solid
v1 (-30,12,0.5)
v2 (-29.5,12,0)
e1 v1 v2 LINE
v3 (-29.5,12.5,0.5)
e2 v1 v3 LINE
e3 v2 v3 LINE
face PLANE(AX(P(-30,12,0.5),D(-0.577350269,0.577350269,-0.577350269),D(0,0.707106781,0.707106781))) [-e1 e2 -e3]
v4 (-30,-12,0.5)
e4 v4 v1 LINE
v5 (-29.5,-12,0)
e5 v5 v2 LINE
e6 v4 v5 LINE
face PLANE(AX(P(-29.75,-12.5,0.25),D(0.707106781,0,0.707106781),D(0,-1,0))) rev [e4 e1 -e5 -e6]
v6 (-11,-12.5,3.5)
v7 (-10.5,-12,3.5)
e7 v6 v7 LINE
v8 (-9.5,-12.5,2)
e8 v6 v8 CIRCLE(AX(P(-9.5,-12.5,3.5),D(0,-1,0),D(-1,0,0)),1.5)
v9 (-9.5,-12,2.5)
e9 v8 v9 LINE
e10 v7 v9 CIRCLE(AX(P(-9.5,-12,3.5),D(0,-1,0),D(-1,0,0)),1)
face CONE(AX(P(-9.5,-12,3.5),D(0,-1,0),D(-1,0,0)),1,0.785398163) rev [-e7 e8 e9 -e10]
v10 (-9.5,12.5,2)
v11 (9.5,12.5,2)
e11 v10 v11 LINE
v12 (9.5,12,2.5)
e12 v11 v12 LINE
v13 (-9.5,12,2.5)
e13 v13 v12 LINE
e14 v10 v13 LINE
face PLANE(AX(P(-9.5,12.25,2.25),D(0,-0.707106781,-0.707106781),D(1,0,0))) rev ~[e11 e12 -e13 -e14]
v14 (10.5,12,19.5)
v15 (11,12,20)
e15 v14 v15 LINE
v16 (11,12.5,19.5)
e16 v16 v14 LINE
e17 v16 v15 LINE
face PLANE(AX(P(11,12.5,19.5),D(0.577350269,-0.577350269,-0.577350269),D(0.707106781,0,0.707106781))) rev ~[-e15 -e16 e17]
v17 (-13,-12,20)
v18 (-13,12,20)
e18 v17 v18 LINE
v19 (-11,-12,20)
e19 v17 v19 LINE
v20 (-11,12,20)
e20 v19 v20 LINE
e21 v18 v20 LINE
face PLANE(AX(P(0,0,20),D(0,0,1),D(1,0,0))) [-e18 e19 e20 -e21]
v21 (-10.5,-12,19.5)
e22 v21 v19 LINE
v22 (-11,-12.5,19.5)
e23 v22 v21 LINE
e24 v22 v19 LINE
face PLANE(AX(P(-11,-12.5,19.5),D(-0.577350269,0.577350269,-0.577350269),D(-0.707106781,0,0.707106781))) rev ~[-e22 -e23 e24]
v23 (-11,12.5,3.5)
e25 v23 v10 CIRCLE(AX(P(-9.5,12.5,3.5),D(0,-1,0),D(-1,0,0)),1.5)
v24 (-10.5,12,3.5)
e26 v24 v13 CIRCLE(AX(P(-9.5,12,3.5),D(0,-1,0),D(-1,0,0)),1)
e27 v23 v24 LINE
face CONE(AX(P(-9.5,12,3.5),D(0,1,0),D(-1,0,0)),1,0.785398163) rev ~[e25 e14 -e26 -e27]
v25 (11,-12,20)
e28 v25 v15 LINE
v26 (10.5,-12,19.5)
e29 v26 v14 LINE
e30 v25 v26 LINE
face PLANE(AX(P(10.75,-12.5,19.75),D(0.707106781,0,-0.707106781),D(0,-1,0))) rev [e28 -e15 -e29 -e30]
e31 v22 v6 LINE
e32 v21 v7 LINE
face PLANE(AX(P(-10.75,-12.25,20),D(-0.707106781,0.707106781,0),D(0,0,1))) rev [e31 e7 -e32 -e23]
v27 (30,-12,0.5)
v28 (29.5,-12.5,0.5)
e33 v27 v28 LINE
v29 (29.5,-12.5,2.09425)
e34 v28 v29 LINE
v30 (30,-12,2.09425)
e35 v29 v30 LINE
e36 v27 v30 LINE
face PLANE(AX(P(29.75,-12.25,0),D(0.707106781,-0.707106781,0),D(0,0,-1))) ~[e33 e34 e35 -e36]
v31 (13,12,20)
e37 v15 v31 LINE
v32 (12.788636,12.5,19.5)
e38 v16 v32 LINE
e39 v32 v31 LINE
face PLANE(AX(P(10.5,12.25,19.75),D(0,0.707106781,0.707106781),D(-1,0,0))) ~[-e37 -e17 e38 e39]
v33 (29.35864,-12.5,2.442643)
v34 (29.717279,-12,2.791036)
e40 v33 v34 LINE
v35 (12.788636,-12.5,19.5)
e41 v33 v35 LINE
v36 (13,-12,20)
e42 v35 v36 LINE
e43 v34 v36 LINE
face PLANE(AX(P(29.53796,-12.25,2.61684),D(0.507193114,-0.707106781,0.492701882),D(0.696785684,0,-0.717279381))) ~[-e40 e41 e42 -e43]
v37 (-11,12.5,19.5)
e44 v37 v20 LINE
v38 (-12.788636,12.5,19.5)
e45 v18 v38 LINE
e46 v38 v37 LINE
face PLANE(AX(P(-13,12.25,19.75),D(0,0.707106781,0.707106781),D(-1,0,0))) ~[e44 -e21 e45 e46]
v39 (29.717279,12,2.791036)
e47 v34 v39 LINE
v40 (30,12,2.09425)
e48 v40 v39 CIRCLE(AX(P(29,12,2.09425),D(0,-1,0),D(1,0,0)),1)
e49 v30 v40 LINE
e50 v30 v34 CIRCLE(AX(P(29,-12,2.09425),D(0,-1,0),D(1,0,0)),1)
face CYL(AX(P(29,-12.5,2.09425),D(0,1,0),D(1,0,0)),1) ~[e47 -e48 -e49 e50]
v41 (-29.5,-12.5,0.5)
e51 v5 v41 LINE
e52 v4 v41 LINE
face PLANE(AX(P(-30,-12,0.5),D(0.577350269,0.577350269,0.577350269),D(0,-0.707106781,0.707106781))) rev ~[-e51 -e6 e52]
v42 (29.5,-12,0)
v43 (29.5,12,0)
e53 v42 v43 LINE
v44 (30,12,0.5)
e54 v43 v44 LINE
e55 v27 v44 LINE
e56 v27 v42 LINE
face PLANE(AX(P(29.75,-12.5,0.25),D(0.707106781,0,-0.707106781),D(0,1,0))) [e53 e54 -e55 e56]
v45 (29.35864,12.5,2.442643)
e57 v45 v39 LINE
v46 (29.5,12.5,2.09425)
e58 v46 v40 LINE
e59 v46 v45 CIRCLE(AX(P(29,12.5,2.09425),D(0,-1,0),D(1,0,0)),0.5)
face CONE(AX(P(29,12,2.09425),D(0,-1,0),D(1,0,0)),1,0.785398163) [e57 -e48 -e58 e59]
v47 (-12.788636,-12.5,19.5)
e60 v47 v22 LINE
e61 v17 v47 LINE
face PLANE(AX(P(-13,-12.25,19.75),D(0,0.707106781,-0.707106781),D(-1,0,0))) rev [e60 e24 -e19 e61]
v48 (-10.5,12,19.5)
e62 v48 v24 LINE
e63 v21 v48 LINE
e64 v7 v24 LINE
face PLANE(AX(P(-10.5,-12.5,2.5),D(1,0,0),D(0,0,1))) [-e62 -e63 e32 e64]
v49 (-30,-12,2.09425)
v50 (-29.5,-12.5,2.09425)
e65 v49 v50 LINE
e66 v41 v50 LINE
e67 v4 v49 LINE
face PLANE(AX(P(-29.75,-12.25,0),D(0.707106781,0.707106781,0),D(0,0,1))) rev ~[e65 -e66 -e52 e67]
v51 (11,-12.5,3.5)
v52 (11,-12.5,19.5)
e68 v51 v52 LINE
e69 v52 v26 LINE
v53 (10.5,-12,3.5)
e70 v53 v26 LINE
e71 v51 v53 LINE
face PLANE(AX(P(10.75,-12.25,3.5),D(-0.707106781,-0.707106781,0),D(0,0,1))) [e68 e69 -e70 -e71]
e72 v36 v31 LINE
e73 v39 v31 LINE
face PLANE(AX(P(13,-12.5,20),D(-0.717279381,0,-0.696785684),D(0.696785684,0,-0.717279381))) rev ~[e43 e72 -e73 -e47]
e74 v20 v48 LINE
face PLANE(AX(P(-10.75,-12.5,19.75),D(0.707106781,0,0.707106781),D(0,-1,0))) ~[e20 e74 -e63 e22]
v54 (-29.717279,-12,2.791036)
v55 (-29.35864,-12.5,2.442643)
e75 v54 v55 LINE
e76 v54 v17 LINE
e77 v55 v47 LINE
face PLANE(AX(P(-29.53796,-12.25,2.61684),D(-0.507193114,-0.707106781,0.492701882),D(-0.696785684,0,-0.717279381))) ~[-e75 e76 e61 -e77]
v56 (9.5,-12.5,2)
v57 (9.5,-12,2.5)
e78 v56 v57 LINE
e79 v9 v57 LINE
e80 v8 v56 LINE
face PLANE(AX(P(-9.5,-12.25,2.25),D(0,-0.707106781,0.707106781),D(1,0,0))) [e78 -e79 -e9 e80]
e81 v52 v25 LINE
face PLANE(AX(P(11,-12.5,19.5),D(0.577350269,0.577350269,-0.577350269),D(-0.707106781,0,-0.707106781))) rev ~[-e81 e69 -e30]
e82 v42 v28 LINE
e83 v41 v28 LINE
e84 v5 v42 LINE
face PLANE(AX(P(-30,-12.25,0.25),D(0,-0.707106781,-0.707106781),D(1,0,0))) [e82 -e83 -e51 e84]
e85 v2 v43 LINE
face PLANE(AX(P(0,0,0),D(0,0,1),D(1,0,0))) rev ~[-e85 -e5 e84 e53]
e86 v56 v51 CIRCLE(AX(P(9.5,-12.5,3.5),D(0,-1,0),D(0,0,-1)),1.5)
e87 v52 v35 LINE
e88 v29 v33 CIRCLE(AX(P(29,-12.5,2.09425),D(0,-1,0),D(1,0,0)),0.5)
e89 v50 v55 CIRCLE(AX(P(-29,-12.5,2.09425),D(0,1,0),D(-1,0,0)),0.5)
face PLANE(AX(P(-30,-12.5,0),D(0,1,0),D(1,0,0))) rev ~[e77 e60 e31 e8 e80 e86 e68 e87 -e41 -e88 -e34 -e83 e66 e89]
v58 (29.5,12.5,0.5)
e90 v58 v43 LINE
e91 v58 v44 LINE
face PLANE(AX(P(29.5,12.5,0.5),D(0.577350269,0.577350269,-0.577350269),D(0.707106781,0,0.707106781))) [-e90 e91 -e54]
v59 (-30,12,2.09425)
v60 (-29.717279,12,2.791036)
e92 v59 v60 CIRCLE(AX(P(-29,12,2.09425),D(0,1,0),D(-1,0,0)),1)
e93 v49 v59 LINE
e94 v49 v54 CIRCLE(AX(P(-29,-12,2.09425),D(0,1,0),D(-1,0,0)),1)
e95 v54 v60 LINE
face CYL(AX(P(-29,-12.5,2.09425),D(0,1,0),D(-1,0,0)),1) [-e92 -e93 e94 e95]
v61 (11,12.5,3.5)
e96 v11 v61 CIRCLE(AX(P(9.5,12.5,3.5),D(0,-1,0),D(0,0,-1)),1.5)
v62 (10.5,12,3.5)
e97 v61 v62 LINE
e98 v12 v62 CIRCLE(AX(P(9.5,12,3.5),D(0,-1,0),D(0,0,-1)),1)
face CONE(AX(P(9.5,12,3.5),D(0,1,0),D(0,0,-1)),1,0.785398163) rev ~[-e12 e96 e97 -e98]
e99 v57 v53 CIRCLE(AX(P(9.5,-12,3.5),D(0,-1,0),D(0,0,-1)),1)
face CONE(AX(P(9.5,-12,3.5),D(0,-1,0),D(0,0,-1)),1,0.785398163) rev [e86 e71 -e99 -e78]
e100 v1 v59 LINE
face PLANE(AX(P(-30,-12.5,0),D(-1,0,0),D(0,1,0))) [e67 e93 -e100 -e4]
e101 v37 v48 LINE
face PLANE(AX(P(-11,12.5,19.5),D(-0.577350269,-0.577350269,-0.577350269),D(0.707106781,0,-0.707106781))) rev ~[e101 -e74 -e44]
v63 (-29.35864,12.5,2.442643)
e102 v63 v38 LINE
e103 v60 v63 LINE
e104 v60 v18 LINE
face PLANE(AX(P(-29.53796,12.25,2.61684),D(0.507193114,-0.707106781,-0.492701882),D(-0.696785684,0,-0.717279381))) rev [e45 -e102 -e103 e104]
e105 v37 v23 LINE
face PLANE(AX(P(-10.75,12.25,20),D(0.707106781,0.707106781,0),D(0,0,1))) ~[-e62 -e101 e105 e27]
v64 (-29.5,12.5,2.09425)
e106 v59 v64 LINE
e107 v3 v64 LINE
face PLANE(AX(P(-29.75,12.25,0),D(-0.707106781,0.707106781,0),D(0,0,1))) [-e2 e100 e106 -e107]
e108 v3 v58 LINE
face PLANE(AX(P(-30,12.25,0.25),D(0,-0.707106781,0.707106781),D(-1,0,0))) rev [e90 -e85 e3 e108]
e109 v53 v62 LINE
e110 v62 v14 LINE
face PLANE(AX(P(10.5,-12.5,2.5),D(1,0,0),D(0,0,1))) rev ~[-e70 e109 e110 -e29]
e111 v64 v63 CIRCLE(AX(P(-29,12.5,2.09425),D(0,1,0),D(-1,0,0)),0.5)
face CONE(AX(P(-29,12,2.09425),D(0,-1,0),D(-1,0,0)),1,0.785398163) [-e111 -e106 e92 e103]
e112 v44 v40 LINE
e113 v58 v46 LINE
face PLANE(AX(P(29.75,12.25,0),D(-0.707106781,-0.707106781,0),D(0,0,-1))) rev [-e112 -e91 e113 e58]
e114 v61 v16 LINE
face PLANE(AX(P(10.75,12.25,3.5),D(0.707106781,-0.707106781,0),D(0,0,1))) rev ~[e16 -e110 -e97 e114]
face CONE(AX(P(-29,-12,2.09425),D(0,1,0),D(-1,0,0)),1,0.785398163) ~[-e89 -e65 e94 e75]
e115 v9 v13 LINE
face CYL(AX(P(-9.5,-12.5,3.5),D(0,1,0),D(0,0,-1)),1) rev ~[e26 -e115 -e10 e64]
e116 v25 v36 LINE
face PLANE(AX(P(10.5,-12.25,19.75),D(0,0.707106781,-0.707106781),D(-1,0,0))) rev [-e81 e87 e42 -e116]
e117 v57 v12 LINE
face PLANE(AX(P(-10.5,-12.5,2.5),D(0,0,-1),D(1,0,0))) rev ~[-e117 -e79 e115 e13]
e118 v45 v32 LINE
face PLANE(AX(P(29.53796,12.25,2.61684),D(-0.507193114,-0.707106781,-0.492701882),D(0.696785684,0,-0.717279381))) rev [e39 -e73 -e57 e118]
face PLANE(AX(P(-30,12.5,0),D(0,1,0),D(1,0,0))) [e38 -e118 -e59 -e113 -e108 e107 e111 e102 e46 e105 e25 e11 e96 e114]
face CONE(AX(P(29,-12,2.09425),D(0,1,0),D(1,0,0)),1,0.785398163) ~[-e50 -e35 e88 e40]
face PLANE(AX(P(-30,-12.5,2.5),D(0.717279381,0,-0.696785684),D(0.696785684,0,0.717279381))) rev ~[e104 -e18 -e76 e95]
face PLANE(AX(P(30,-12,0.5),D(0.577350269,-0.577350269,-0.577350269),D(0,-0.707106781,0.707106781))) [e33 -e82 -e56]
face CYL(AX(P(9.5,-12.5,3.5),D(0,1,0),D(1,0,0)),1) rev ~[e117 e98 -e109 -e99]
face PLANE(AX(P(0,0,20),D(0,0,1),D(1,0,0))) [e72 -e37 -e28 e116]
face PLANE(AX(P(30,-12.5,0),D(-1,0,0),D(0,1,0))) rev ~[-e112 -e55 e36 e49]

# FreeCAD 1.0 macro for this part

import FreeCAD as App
import Part
import Sketcher


def edges_at(feature, points):
    """Names of the edges that pass closest to the given points."""
    edges = feature.Shape.Edges
    near = lambda p: min(range(len(edges)), key=lambda i: edges[i].distToShape(Part.Vertex(*p))[0])
    return sorted({f"Edge{near(p) + 1}" for p in points})


def add_polygon(sketch, points):
    """Adds a closed chain of lines whose ends are joined by coincident constraints."""
    first, n = sketch.GeometryCount, len(points)
    for a, b in zip(points, points[1:] + points[:1]):
        sketch.addGeometry(Part.LineSegment(App.Vector(*a, 0), App.Vector(*b, 0)), False)
    for i in range(n):
        sketch.addConstraint(Sketcher.Constraint("Coincident", first + i, 2, first + (i + 1) % n, 1))

doc = App.newDocument("Part")
body = doc.addObject("PartDesign::Body", "Body")

sketch1 = doc.addObject("Sketcher::SketchObject", "Sketch")
body.addObject(sketch1)
sketch1.AttachmentSupport = (doc.XY_Plane, [""])
sketch1.MapMode = "FlatFace"
add_polygon(sketch1, [(-30, 12.5), (-30, -12.5), (30, -12.5), (30, 12.5)])
sketch1.addConstraint([
    Sketcher.Constraint("Vertical", 0),
    Sketcher.Constraint("Horizontal", 1),
    Sketcher.Constraint("Vertical", 2),
    Sketcher.Constraint("Horizontal", 3),
    Sketcher.Constraint("Symmetric", 0, 2, 2, 2, -1, 1),
    Sketcher.Constraint("DistanceX", 1, 1, 1, 2, 60.0),
    Sketcher.Constraint("DistanceY", 0, 2, 0, 1, 25.0),
])
pad1 = doc.addObject("PartDesign::Pad", "Pad")
body.addObject(pad1)
pad1.Profile = sketch1
pad1.Length = 20

sketch2 = doc.addObject("Sketcher::SketchObject", "Sketch001")
body.addObject(sketch2)
sketch2.AttachmentSupport = (doc.XZ_Plane, [""])
sketch2.MapMode = "FlatFace"
sketch2.AttachmentOffset = App.Placement(App.Vector(0, 0, 12.5), App.Rotation())
add_polygon(sketch2, [(-10.5, 20), (-10.5, 2.5), (10.5, 2.5), (10.5, 20)])
add_polygon(sketch2, [(-30, 2.5), (-13, 20), (-30, 20)])
add_polygon(sketch2, [(30, 2.5), (30, 20), (13, 20)])
sketch2.addConstraint([
    Sketcher.Constraint("Vertical", 0),
    Sketcher.Constraint("Horizontal", 1),
    Sketcher.Constraint("Vertical", 2),
    Sketcher.Constraint("Horizontal", 3),
    Sketcher.Constraint("Horizontal", 5),
    Sketcher.Constraint("Vertical", 6),
    Sketcher.Constraint("Vertical", 7),
    Sketcher.Constraint("Horizontal", 8),
    Sketcher.Constraint("Symmetric", 5, 2, 7, 2, -2),
    Sketcher.Constraint("Horizontal", 3, 2, 4, 2),
    Sketcher.Constraint("Horizontal", 1, 2, 6, 2),
    Sketcher.Constraint("Horizontal", 6, 2, 9, 2),
    Sketcher.Constraint("Equal", 5, 8),
    Sketcher.Constraint("DistanceX", 1, 1, 1, 2, 21.0),
    Sketcher.Constraint("DistanceX", 5, 2, 5, 1, 17.0),
    Sketcher.Constraint("DistanceY", 0, 2, 0, 1, 17.5),
    Sketcher.Constraint("DistanceY", -1, 1, 2, 2, 20.0),
    Sketcher.Constraint("DistanceX", 4, 2, -1, 1, 13.0),
    Sketcher.Constraint("DistanceX", 0, 2, -1, 1, 10.5),
])
pocket1 = doc.addObject("PartDesign::Pocket", "Pocket")
body.addObject(pocket1)
pocket1.Profile = sketch2
pocket1.Type = "ThroughAll"
doc.recompute()

fillet = doc.addObject("PartDesign::Fillet", "Fillet")
body.addObject(fillet)
fillet.Base = (pocket1, edges_at(pocket1, [
    (-10.5, 0, 2.5),
    (10.5, 0, 2.5),
    (-30, 0, 2.5),
    (30, 0, 2.5),
]))
fillet.Radius = 1
doc.recompute()

chamfer = doc.addObject("PartDesign::Chamfer", "Chamfer")
body.addObject(chamfer)
chamfer.Base = (fillet, edges_at(fillet, [
    (0, -12.5, 0),
    (30, 0, 0),
    (0, 12.5, 0),
    (-30, 0, 0),
    (-10.5, 0, 20),
    (10.5, 0, 20),
    (30, -12.5, 1.047),
    (29.927, -12.5, 2.47),
    (21.359, -12.5, 11.396),
    (-30, -12.5, 1.047),
    (11.75, -12.5, 20),
    (-29.927, -12.5, 2.47),
    (10.5, -12.5, 11.75),
    (-21.359, -12.5, 11.396),
    (10.207, -12.5, 2.793),
    (-11.75, -12.5, 20),
    (0, -12.5, 2.5),
    (-10.5, -12.5, 11.75),
    (-10.207, -12.5, 2.793),
    (-30, 12.5, 1.047),
    (-29.927, 12.5, 2.47),
    (-21.359, 12.5, 11.396),
    (30, 12.5, 1.047),
    (-11.75, 12.5, 20),
    (29.927, 12.5, 2.47),
    (-10.5, 12.5, 11.75),
    (21.359, 12.5, 11.396),
    (-10.207, 12.5, 2.793),
    (11.75, 12.5, 20),
    (0, 12.5, 2.5),
    (10.5, 12.5, 11.75),
    (10.207, 12.5, 2.793),
]))
chamfer.Size = 0.5

doc.recompute()
